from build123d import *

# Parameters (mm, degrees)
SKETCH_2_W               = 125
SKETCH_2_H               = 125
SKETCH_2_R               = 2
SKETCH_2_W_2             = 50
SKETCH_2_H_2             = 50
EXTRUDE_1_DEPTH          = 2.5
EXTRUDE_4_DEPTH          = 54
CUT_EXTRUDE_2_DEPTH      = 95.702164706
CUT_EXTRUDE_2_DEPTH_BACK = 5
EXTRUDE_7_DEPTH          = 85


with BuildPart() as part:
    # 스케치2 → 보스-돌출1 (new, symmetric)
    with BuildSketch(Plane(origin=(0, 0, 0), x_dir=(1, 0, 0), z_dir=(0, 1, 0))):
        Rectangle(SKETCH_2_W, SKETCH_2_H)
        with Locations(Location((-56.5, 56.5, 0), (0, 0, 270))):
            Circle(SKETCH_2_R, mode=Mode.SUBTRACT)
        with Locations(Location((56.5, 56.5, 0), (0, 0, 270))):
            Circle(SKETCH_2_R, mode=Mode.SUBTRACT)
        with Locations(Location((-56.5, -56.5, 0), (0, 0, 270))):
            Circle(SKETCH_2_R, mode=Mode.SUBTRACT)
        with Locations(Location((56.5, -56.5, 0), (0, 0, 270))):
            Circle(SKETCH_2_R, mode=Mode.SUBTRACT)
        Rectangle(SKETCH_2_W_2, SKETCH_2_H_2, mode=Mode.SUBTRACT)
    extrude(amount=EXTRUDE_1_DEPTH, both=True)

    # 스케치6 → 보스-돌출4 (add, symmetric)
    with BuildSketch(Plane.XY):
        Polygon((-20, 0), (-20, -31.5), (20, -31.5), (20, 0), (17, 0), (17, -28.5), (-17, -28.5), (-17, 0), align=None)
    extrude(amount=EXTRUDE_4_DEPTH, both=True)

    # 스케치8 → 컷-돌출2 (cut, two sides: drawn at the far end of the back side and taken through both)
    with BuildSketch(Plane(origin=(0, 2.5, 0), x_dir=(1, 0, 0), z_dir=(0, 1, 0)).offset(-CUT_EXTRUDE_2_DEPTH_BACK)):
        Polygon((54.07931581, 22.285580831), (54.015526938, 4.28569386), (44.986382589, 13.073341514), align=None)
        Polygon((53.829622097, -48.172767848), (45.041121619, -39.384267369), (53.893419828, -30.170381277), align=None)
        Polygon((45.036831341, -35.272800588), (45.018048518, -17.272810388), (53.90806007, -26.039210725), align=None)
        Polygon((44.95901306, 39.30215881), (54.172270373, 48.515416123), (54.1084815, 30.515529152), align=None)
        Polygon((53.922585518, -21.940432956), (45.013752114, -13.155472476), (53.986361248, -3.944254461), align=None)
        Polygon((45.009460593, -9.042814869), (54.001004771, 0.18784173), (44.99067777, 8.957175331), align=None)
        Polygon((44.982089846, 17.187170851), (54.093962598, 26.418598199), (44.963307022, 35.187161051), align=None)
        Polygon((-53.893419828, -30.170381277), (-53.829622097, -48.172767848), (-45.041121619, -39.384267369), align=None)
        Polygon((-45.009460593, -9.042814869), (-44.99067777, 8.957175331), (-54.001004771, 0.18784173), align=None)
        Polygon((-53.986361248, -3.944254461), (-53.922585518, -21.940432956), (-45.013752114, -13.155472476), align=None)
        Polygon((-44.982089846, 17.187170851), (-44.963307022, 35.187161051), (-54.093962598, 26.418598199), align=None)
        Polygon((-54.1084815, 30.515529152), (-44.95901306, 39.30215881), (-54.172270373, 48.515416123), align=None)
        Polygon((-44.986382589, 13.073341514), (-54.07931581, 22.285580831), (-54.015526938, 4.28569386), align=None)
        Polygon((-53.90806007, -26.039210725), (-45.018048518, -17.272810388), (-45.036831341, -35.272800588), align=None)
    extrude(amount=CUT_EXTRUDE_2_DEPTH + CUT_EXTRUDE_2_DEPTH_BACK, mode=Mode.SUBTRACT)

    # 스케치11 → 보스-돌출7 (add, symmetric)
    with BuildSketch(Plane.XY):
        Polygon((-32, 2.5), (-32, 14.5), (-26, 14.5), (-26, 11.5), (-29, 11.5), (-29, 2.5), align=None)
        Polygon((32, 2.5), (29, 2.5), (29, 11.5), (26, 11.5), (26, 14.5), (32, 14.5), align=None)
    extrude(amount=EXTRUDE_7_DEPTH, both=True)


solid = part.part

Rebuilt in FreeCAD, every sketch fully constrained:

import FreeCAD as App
import Part
import Sketcher

V = App.Vector

doc = App.newDocument("Part")
params = doc.addObject("Spreadsheet::Sheet", "Params")
for row, (alias, value) in enumerate([
    ("sketch1_diameter", "4 mm"),
    ("sketch1_width", "125 mm"),
    ("sketch1_width2", "50 mm"),
    ("pad1_length", "5 mm"),
    ("sketch2_width", "40 mm"),
    ("sketch2_width2", "3 mm"),
    ("sketch2_height", "31.5 mm"),
    ("sketch2_height2", "28.5 mm"),
    ("pad2_length", "108 mm"),
    ("sketch3_length", "18 mm"),
    ("sketch4_width", "3 mm"),
    ("sketch4_height", "12 mm"),
    ("pad3_length", "170 mm"),
], start=1):
    params.set(f"A{row}", alias)
    params.set(f"B{row}", "=" + value)
    params.setAlias(f"B{row}", alias)

body = doc.addObject("PartDesign::Body", "Body")

sketch1 = body.newObject("Sketcher::SketchObject", "Sketch")
sketch1.AttachmentSupport = (doc.getObject("XZ_Plane"), [""])
sketch1.MapMode = "FlatFace"
sketch1.addGeometry([
    Part.LineSegment(V(-62.5, -62.5, 0), V(-62.5, 62.5, 0)),
    Part.LineSegment(V(-62.5, 62.5, 0), V(62.5, 62.5, 0)),
    Part.LineSegment(V(62.5, 62.5, 0), V(62.5, -62.5, 0)),
    Part.LineSegment(V(62.5, -62.5, 0), V(-62.5, -62.5, 0)),
    Part.Circle(V(-56.5, 56.5, 0), V(0, 0, 1), 2),
    Part.Circle(V(56.5, 56.5, 0), V(0, 0, 1), 2),
    Part.Circle(V(-56.5, -56.5, 0), V(0, 0, 1), 2),
    Part.LineSegment(V(25, 25, 0), V(-25, 25, 0)),
    Part.LineSegment(V(-25, 25, 0), V(-25, -25, 0)),
    Part.LineSegment(V(-25, -25, 0), V(25, -25, 0)),
    Part.LineSegment(V(25, -25, 0), V(25, 25, 0)),
    Part.Circle(V(56.5, -56.5, 0), V(0, 0, 1), 2),
], False)
sketch1.addConstraint([
    Sketcher.Constraint("Coincident", 0, 2, 1, 1),
    Sketcher.Constraint("Coincident", 1, 2, 2, 1),
    Sketcher.Constraint("Coincident", 2, 2, 3, 1),
    Sketcher.Constraint("Coincident", 3, 2, 0, 1),
    Sketcher.Constraint("Coincident", 7, 2, 8, 1),
    Sketcher.Constraint("Coincident", 8, 2, 9, 1),
    Sketcher.Constraint("Coincident", 9, 2, 10, 1),
    Sketcher.Constraint("Coincident", 10, 2, 7, 1),
    Sketcher.Constraint("Vertical", 0),
    Sketcher.Constraint("Horizontal", 1),
    Sketcher.Constraint("Vertical", 2),
    Sketcher.Constraint("Horizontal", 3),
    Sketcher.Constraint("Horizontal", 7),
    Sketcher.Constraint("Vertical", 8),
    Sketcher.Constraint("Horizontal", 9),
    Sketcher.Constraint("Vertical", 10),
    Sketcher.Constraint("Equal", 4, 5),
    Sketcher.Constraint("Equal", 5, 6),
    Sketcher.Constraint("Equal", 6, 11),
    Sketcher.Constraint("Symmetric", 5, 3, 6, 3, -1, 1),
    Sketcher.Constraint("Symmetric", 4, 3, 11, 3, -1, 1),
    Sketcher.Constraint("Symmetric", 0, 2, 2, 2, -1, 1),
    Sketcher.Constraint("Symmetric", 7, 2, 9, 2, -1, 1),
    Sketcher.Constraint("Symmetric", 4, 3, 5, 3, -2),
    Sketcher.Constraint("Equal", 3, 0),
    Sketcher.Constraint("Equal", 9, 8),
    Sketcher.Constraint("Diameter", 4, 4.0),
    Sketcher.Constraint("DistanceX", 1, 1, 1, 2, 125.0),
    Sketcher.Constraint("DistanceX", 7, 2, 7, 1, 50.0),
    Sketcher.Constraint("DistanceX", 4, 3, 5, 3, 113.0),
    Sketcher.Constraint("DistanceY", 6, 3, 4, 3, 113.0),
])
sketch1.setExpression("Constraints[26]", "Params.sketch1_diameter")
sketch1.setExpression("Constraints[27]", "Params.sketch1_width")
sketch1.setExpression("Constraints[28]", "Params.sketch1_width2")
pad1 = body.newObject("PartDesign::Pad", "Pad")
pad1.Profile = sketch1
pad1.setExpression("Length", "Params.pad1_length")
pad1.Midplane = True

sketch2 = body.newObject("Sketcher::SketchObject", "Sketch001")
sketch2.AttachmentSupport = (doc.getObject("XY_Plane"), [""])
sketch2.MapMode = "FlatFace"
sketch2.addGeometry([
    Part.LineSegment(V(-20, 0, 0), V(-20, -31.5, 0)),
    Part.LineSegment(V(-20, -31.5, 0), V(20, -31.5, 0)),
    Part.LineSegment(V(20, -31.5, 0), V(20, 0, 0)),
    Part.LineSegment(V(20, 0, 0), V(17, 0, 0)),
    Part.LineSegment(V(17, 0, 0), V(17, -28.5, 0)),
    Part.LineSegment(V(17, -28.5, 0), V(-17, -28.5, 0)),
    Part.LineSegment(V(-17, -28.5, 0), V(-17, 0, 0)),
    Part.LineSegment(V(-17, 0, 0), V(-20, 0, 0)),
], False)
sketch2.addConstraint([
    Sketcher.Constraint("Coincident", 0, 2, 1, 1),
    Sketcher.Constraint("Coincident", 1, 2, 2, 1),
    Sketcher.Constraint("Coincident", 2, 2, 3, 1),
    Sketcher.Constraint("Coincident", 3, 2, 4, 1),
    Sketcher.Constraint("Coincident", 4, 2, 5, 1),
    Sketcher.Constraint("Coincident", 5, 2, 6, 1),
    Sketcher.Constraint("Coincident", 6, 2, 7, 1),
    Sketcher.Constraint("Coincident", 7, 2, 0, 1),
    Sketcher.Constraint("Vertical", 0),
    Sketcher.Constraint("Horizontal", 1),
    Sketcher.Constraint("Vertical", 2),
    Sketcher.Constraint("Horizontal", 3),
    Sketcher.Constraint("Vertical", 4),
    Sketcher.Constraint("Horizontal", 5),
    Sketcher.Constraint("Vertical", 6),
    Sketcher.Constraint("Horizontal", 7),
    Sketcher.Constraint("Symmetric", 3, 2, 6, 2, -1, 1),
    Sketcher.Constraint("Symmetric", 2, 2, 7, 2, -2),
    Sketcher.Constraint("DistanceX", 1, 1, 1, 2, 40.0),
    Sketcher.Constraint("DistanceX", 3, 2, 3, 1, 3.0),
    Sketcher.Constraint("DistanceY", 0, 2, 0, 1, 31.5),
    Sketcher.Constraint("DistanceY", 4, 2, 4, 1, 28.5),
])
sketch2.setExpression("Constraints[18]", "Params.sketch2_width")
sketch2.setExpression("Constraints[19]", "Params.sketch2_width2")
sketch2.setExpression("Constraints[20]", "Params.sketch2_height")
sketch2.setExpression("Constraints[21]", "Params.sketch2_height2")
pad2 = body.newObject("PartDesign::Pad", "Pad001")
pad2.Profile = sketch2
pad2.setExpression("Length", "Params.pad2_length")
pad2.Midplane = True

sketch3 = body.newObject("Sketcher::SketchObject", "Sketch002")
sketch3.AttachmentSupport = (doc.getObject("XZ_Plane"), [""])
sketch3.MapMode = "FlatFace"
sketch3.AttachmentOffset = App.Placement(V(0, 0, -2.5), App.Rotation())
sketch3.addGeometry([
    Part.LineSegment(V(54, -4, 0), V(54, -22, 0)),
    Part.LineSegment(V(54, -22, 0), V(45, -13, 0)),
    Part.LineSegment(V(45, -13, 0), V(54, -4, 0)),
    Part.LineSegment(V(45, 39, 0), V(54, 48, 0)),
    Part.LineSegment(V(54, 48, 0), V(54, 30, 0)),
    Part.LineSegment(V(54, 30, 0), V(45, 39, 0)),
    Part.LineSegment(V(45, 17, 0), V(45, 35, 0)),
    Part.LineSegment(V(45, 35, 0), V(54, 26, 0)),
    Part.LineSegment(V(54, 26, 0), V(45, 17, 0)),
    Part.LineSegment(V(54, -49, 0), V(45, -39, 0)),
    Part.LineSegment(V(45, -39, 0), V(54, -31, 0)),
    Part.LineSegment(V(54, -31, 0), V(54, -49, 0)),
    Part.LineSegment(V(45, 13, 0), V(54, 22, 0)),
    Part.LineSegment(V(54, 22, 0), V(54, 4, 0)),
    Part.LineSegment(V(54, 4, 0), V(45, 13, 0)),
    Part.LineSegment(V(45, 9, 0), V(54, 0, 0)),
    Part.LineSegment(V(54, 0, 0), V(45, -9, 0)),
    Part.LineSegment(V(45, -9, 0), V(45, 9, 0)),
    Part.LineSegment(V(45, -17, 0), V(54, -26, 0)),
    Part.LineSegment(V(54, -26, 0), V(45, -35, 0)),
    Part.LineSegment(V(45, -35, 0), V(45, -17, 0)),
    Part.LineSegment(V(-54, 30, 0), V(-54, 48, 0)),
    Part.LineSegment(V(-54, 48, 0), V(-45, 39, 0)),
    Part.LineSegment(V(-45, 39, 0), V(-54, 30, 0)),
    Part.LineSegment(V(-45, 9, 0), V(-45, -9, 0)),
    Part.LineSegment(V(-45, -9, 0), V(-54, 0, 0)),
    Part.LineSegment(V(-54, 0, 0), V(-45, 9, 0)),
    Part.LineSegment(V(-54, 4, 0), V(-54, 22, 0)),
    Part.LineSegment(V(-54, 22, 0), V(-45, 13, 0)),
    Part.LineSegment(V(-45, 13, 0), V(-54, 4, 0)),
    Part.LineSegment(V(-45, -17, 0), V(-45, -35, 0)),
    Part.LineSegment(V(-45, -35, 0), V(-54, -26, 0)),
    Part.LineSegment(V(-54, -26, 0), V(-45, -17, 0)),
    Part.LineSegment(V(-54, -31, 0), V(-45, -39, 0)),
    Part.LineSegment(V(-45, -39, 0), V(-54, -49, 0)),
    Part.LineSegment(V(-54, -49, 0), V(-54, -31, 0)),
    Part.LineSegment(V(-45, -13, 0), V(-54, -22, 0)),
    Part.LineSegment(V(-54, -22, 0), V(-54, -4, 0)),
    Part.LineSegment(V(-54, -4, 0), V(-45, -13, 0)),
    Part.LineSegment(V(-45, 17, 0), V(-54, 26, 0)),
    Part.LineSegment(V(-54, 26, 0), V(-45, 35, 0)),
    Part.LineSegment(V(-45, 35, 0), V(-45, 17, 0)),
], False)
sketch3.addConstraint([
    Sketcher.Constraint("Coincident", 0, 2, 1, 1),
    Sketcher.Constraint("Coincident", 1, 2, 2, 1),
    Sketcher.Constraint("Coincident", 2, 2, 0, 1),
    Sketcher.Constraint("Coincident", 3, 2, 4, 1),
    Sketcher.Constraint("Coincident", 4, 2, 5, 1),
    Sketcher.Constraint("Coincident", 5, 2, 3, 1),
    Sketcher.Constraint("Coincident", 6, 2, 7, 1),
    Sketcher.Constraint("Coincident", 7, 2, 8, 1),
    Sketcher.Constraint("Coincident", 8, 2, 6, 1),
    Sketcher.Constraint("Coincident", 9, 2, 10, 1),
    Sketcher.Constraint("Coincident", 10, 2, 11, 1),
    Sketcher.Constraint("Coincident", 11, 2, 9, 1),
    Sketcher.Constraint("Coincident", 12, 2, 13, 1),
    Sketcher.Constraint("Coincident", 13, 2, 14, 1),
    Sketcher.Constraint("Coincident", 14, 2, 12, 1),
    Sketcher.Constraint("Coincident", 15, 2, 16, 1),
    Sketcher.Constraint("Coincident", 16, 2, 17, 1),
    Sketcher.Constraint("Coincident", 17, 2, 15, 1),
    Sketcher.Constraint("Coincident", 18, 2, 19, 1),
    Sketcher.Constraint("Coincident", 19, 2, 20, 1),
    Sketcher.Constraint("Coincident", 20, 2, 18, 1),
    Sketcher.Constraint("Coincident", 21, 2, 22, 1),
    Sketcher.Constraint("Coincident", 22, 2, 23, 1),
    Sketcher.Constraint("Coincident", 23, 2, 21, 1),
    Sketcher.Constraint("Coincident", 24, 2, 25, 1),
    Sketcher.Constraint("Coincident", 25, 2, 26, 1),
    Sketcher.Constraint("Coincident", 26, 2, 24, 1),
    Sketcher.Constraint("Coincident", 27, 2, 28, 1),
    Sketcher.Constraint("Coincident", 28, 2, 29, 1),
    Sketcher.Constraint("Coincident", 29, 2, 27, 1),
    Sketcher.Constraint("Coincident", 30, 2, 31, 1),
    Sketcher.Constraint("Coincident", 31, 2, 32, 1),
    Sketcher.Constraint("Coincident", 32, 2, 30, 1),
    Sketcher.Constraint("Coincident", 33, 2, 34, 1),
    Sketcher.Constraint("Coincident", 34, 2, 35, 1),
    Sketcher.Constraint("Coincident", 35, 2, 33, 1),
    Sketcher.Constraint("Coincident", 36, 2, 37, 1),
    Sketcher.Constraint("Coincident", 37, 2, 38, 1),
    Sketcher.Constraint("Coincident", 38, 2, 36, 1),
    Sketcher.Constraint("Coincident", 39, 2, 40, 1),
    Sketcher.Constraint("Coincident", 40, 2, 41, 1),
    Sketcher.Constraint("Coincident", 41, 2, 39, 1),
    Sketcher.Constraint("Symmetric", 3, 2, 21, 2, -2),
    Sketcher.Constraint("Symmetric", 5, 2, 22, 2, -2),
    Sketcher.Constraint("Symmetric", 4, 2, 23, 2, -2),
    Sketcher.Constraint("Symmetric", 16, 2, 24, 2, -2),
    Sketcher.Constraint("Symmetric", 15, 2, 25, 2, -2),
    Sketcher.Constraint("Symmetric", 17, 2, 26, 2, -2),
    Sketcher.Constraint("Symmetric", 12, 2, 27, 2, -2),
    Sketcher.Constraint("Symmetric", 14, 2, 28, 2, -2),
    Sketcher.Constraint("Symmetric", 13, 2, 29, 2, -2),
    Sketcher.Constraint("Symmetric", 19, 2, 30, 2, -2),
    Sketcher.Constraint("Symmetric", 18, 2, 31, 2, -2),
    Sketcher.Constraint("Symmetric", 20, 2, 32, 2, -2),
    Sketcher.Constraint("Symmetric", 9, 2, 33, 2, -2),
    Sketcher.Constraint("Symmetric", 11, 2, 34, 2, -2),
    Sketcher.Constraint("Symmetric", 10, 2, 35, 2, -2),
    Sketcher.Constraint("Symmetric", 0, 2, 36, 2, -2),
    Sketcher.Constraint("Symmetric", 2, 2, 37, 2, -2),
    Sketcher.Constraint("Symmetric", 1, 2, 38, 2, -2),
    Sketcher.Constraint("Symmetric", 7, 2, 39, 2, -2),
    Sketcher.Constraint("Symmetric", 6, 2, 40, 2, -2),
    Sketcher.Constraint("Symmetric", 8, 2, 41, 2, -2),
    Sketcher.Constraint("Parallel", 0, 4),
    Sketcher.Constraint("Parallel", 5, 7),
    Sketcher.Constraint("Perpendicular", 3, 9),
    Sketcher.Constraint("Parallel", 4, 11),
    Sketcher.Constraint("Parallel", 8, 12),
    Sketcher.Constraint("Parallel", 11, 13),
    Sketcher.Constraint("Parallel", 14, 15),
    Sketcher.Constraint("Parallel", 2, 16),
    Sketcher.Constraint("Parallel", 6, 17),
    Sketcher.Constraint("Parallel", 1, 18),
    Sketcher.Constraint("Parallel", 10, 19),
    Sketcher.Constraint("Parallel", 17, 20),
    Sketcher.Constraint("Parallel", 9, 22),
    Sketcher.Constraint("Equal", 0, 6),
    Sketcher.Constraint("Equal", 6, 11),
    Sketcher.Constraint("Equal", 11, 17),
    Sketcher.Constraint("Equal", 17, 20),
    Sketcher.Constraint("Distance", 0, 18.0),
    Sketcher.Constraint("Distance", 4, 18.0025),
    Sketcher.Constraint("DistanceY", -1, 1, 6, 2, 35.272801),
    Sketcher.Constraint("DistanceY", 18, 2, -1, 1, 26.418598),
    Sketcher.Constraint("DistanceX", 5, 2, 3, 2, 8.7885),
    Sketcher.Constraint("DistanceX", 5, 2, 4, 2, 8.852298),
    Sketcher.Constraint("DistanceY", 8, 2, 7, 2, 8.7664),
    Sketcher.Constraint("DistanceX", 1, 2, 10, 2, 9.122099),
    Sketcher.Constraint("DistanceX", 7, 2, 13, 2, 0.078301),
    Sketcher.Constraint("DistanceY", 1, 2, 15, 2, 12.8855),
    Sketcher.Constraint("DistanceX", 17, 2, 13, 2, 8.976901),
    Sketcher.Constraint("DistanceX", 31, 2, 29, 2, 0.107601),
    Sketcher.Constraint("Distance", 2, 12.599532),
    Sketcher.Constraint("Distance", 10, 12.685331),
    Sketcher.Constraint("Distance", 12, 12.511708),
    Sketcher.Constraint("Distance", 13, 17.996292),
    Sketcher.Constraint("Distance", 15, 12.886151),
    Sketcher.Constraint("Distance", 19, 12.659248),
    Sketcher.Constraint("DistanceY", 0, 2, -1, 1, 22.285581),
    Sketcher.Constraint("DistanceX", -1, 1, 4, 2, 53.89342),
    Sketcher.Constraint("DistanceY", -1, 1, 4, 2, 30.170381),
    Sketcher.Constraint("DistanceX", -1, 1, 6, 2, 45.036831),
    Sketcher.Constraint("DistanceY", 9, 2, -1, 1, 39.302159),
    Sketcher.Constraint("DistanceX", -1, 1, 10, 2, 54.108482),
    Sketcher.Constraint("DistanceY", 12, 2, 4, 2, 8.229948),
])
sketch3.setExpression("Constraints[80]", "Params.sketch3_length")
pocket1 = body.newObject("PartDesign::Pocket", "Pocket")
pocket1.Profile = sketch3
pocket1.Type = "ThroughAll"
pocket1.Midplane = True

sketch4 = body.newObject("Sketcher::SketchObject", "Sketch003")
sketch4.AttachmentSupport = (doc.getObject("XY_Plane"), [""])
sketch4.MapMode = "FlatFace"
sketch4.addGeometry([
    Part.LineSegment(V(-32, 14.5, 0), V(-32, 2.5, 0)),
    Part.LineSegment(V(-32, 2.5, 0), V(-29, 2.5, 0)),
    Part.LineSegment(V(-29, 2.5, 0), V(-29, 11.5, 0)),
    Part.LineSegment(V(-29, 11.5, 0), V(-26, 11.5, 0)),
    Part.LineSegment(V(-26, 11.5, 0), V(-26, 14.5, 0)),
    Part.LineSegment(V(-26, 14.5, 0), V(-32, 14.5, 0)),
    Part.LineSegment(V(29, 2.5, 0), V(32, 2.5, 0)),
    Part.LineSegment(V(32, 2.5, 0), V(32, 14.5, 0)),
    Part.LineSegment(V(32, 14.5, 0), V(26, 14.5, 0)),
    Part.LineSegment(V(26, 14.5, 0), V(26, 11.5, 0)),
    Part.LineSegment(V(26, 11.5, 0), V(29, 11.5, 0)),
    Part.LineSegment(V(29, 11.5, 0), V(29, 2.5, 0)),
], False)
sketch4.addConstraint([
    Sketcher.Constraint("Coincident", 0, 2, 1, 1),
    Sketcher.Constraint("Coincident", 1, 2, 2, 1),
    Sketcher.Constraint("Coincident", 2, 2, 3, 1),
    Sketcher.Constraint("Coincident", 3, 2, 4, 1),
    Sketcher.Constraint("Coincident", 4, 2, 5, 1),
    Sketcher.Constraint("Coincident", 5, 2, 0, 1),
    Sketcher.Constraint("Coincident", 6, 2, 7, 1),
    Sketcher.Constraint("Coincident", 7, 2, 8, 1),
    Sketcher.Constraint("Coincident", 8, 2, 9, 1),
    Sketcher.Constraint("Coincident", 9, 2, 10, 1),
    Sketcher.Constraint("Coincident", 10, 2, 11, 1),
    Sketcher.Constraint("Coincident", 11, 2, 6, 1),
    Sketcher.Constraint("Vertical", 0),
    Sketcher.Constraint("Horizontal", 1),
    Sketcher.Constraint("Vertical", 2),
    Sketcher.Constraint("Horizontal", 3),
    Sketcher.Constraint("Vertical", 4),
    Sketcher.Constraint("Horizontal", 5),
    Sketcher.Constraint("Horizontal", 6),
    Sketcher.Constraint("Vertical", 7),
    Sketcher.Constraint("Horizontal", 8),
    Sketcher.Constraint("Vertical", 9),
    Sketcher.Constraint("Horizontal", 10),
    Sketcher.Constraint("Vertical", 11),
    Sketcher.Constraint("Symmetric", 0, 2, 6, 2, -2),
    Sketcher.Constraint("Symmetric", 4, 2, 8, 2, -2),
    Sketcher.Constraint("Symmetric", 2, 2, 10, 2, -2),
    Sketcher.Constraint("Equal", 1, 3),
    Sketcher.Constraint("Equal", 10, 4),
    Sketcher.Constraint("DistanceX", 1, 1, 1, 2, 3.0),
    Sketcher.Constraint("DistanceY", 0, 2, 0, 1, 12.0),
    Sketcher.Constraint("DistanceX", 0, 2, -1, 1, 32.0),
    Sketcher.Constraint("DistanceY", -1, 1, 0, 2, 2.5),
])
sketch4.setExpression("Constraints[29]", "Params.sketch4_width")
sketch4.setExpression("Constraints[30]", "Params.sketch4_height")
pad3 = body.newObject("PartDesign::Pad", "Pad002")
pad3.Profile = sketch4
pad3.setExpression("Length", "Params.pad3_length")
pad3.Midplane = True

doc.recompute()
